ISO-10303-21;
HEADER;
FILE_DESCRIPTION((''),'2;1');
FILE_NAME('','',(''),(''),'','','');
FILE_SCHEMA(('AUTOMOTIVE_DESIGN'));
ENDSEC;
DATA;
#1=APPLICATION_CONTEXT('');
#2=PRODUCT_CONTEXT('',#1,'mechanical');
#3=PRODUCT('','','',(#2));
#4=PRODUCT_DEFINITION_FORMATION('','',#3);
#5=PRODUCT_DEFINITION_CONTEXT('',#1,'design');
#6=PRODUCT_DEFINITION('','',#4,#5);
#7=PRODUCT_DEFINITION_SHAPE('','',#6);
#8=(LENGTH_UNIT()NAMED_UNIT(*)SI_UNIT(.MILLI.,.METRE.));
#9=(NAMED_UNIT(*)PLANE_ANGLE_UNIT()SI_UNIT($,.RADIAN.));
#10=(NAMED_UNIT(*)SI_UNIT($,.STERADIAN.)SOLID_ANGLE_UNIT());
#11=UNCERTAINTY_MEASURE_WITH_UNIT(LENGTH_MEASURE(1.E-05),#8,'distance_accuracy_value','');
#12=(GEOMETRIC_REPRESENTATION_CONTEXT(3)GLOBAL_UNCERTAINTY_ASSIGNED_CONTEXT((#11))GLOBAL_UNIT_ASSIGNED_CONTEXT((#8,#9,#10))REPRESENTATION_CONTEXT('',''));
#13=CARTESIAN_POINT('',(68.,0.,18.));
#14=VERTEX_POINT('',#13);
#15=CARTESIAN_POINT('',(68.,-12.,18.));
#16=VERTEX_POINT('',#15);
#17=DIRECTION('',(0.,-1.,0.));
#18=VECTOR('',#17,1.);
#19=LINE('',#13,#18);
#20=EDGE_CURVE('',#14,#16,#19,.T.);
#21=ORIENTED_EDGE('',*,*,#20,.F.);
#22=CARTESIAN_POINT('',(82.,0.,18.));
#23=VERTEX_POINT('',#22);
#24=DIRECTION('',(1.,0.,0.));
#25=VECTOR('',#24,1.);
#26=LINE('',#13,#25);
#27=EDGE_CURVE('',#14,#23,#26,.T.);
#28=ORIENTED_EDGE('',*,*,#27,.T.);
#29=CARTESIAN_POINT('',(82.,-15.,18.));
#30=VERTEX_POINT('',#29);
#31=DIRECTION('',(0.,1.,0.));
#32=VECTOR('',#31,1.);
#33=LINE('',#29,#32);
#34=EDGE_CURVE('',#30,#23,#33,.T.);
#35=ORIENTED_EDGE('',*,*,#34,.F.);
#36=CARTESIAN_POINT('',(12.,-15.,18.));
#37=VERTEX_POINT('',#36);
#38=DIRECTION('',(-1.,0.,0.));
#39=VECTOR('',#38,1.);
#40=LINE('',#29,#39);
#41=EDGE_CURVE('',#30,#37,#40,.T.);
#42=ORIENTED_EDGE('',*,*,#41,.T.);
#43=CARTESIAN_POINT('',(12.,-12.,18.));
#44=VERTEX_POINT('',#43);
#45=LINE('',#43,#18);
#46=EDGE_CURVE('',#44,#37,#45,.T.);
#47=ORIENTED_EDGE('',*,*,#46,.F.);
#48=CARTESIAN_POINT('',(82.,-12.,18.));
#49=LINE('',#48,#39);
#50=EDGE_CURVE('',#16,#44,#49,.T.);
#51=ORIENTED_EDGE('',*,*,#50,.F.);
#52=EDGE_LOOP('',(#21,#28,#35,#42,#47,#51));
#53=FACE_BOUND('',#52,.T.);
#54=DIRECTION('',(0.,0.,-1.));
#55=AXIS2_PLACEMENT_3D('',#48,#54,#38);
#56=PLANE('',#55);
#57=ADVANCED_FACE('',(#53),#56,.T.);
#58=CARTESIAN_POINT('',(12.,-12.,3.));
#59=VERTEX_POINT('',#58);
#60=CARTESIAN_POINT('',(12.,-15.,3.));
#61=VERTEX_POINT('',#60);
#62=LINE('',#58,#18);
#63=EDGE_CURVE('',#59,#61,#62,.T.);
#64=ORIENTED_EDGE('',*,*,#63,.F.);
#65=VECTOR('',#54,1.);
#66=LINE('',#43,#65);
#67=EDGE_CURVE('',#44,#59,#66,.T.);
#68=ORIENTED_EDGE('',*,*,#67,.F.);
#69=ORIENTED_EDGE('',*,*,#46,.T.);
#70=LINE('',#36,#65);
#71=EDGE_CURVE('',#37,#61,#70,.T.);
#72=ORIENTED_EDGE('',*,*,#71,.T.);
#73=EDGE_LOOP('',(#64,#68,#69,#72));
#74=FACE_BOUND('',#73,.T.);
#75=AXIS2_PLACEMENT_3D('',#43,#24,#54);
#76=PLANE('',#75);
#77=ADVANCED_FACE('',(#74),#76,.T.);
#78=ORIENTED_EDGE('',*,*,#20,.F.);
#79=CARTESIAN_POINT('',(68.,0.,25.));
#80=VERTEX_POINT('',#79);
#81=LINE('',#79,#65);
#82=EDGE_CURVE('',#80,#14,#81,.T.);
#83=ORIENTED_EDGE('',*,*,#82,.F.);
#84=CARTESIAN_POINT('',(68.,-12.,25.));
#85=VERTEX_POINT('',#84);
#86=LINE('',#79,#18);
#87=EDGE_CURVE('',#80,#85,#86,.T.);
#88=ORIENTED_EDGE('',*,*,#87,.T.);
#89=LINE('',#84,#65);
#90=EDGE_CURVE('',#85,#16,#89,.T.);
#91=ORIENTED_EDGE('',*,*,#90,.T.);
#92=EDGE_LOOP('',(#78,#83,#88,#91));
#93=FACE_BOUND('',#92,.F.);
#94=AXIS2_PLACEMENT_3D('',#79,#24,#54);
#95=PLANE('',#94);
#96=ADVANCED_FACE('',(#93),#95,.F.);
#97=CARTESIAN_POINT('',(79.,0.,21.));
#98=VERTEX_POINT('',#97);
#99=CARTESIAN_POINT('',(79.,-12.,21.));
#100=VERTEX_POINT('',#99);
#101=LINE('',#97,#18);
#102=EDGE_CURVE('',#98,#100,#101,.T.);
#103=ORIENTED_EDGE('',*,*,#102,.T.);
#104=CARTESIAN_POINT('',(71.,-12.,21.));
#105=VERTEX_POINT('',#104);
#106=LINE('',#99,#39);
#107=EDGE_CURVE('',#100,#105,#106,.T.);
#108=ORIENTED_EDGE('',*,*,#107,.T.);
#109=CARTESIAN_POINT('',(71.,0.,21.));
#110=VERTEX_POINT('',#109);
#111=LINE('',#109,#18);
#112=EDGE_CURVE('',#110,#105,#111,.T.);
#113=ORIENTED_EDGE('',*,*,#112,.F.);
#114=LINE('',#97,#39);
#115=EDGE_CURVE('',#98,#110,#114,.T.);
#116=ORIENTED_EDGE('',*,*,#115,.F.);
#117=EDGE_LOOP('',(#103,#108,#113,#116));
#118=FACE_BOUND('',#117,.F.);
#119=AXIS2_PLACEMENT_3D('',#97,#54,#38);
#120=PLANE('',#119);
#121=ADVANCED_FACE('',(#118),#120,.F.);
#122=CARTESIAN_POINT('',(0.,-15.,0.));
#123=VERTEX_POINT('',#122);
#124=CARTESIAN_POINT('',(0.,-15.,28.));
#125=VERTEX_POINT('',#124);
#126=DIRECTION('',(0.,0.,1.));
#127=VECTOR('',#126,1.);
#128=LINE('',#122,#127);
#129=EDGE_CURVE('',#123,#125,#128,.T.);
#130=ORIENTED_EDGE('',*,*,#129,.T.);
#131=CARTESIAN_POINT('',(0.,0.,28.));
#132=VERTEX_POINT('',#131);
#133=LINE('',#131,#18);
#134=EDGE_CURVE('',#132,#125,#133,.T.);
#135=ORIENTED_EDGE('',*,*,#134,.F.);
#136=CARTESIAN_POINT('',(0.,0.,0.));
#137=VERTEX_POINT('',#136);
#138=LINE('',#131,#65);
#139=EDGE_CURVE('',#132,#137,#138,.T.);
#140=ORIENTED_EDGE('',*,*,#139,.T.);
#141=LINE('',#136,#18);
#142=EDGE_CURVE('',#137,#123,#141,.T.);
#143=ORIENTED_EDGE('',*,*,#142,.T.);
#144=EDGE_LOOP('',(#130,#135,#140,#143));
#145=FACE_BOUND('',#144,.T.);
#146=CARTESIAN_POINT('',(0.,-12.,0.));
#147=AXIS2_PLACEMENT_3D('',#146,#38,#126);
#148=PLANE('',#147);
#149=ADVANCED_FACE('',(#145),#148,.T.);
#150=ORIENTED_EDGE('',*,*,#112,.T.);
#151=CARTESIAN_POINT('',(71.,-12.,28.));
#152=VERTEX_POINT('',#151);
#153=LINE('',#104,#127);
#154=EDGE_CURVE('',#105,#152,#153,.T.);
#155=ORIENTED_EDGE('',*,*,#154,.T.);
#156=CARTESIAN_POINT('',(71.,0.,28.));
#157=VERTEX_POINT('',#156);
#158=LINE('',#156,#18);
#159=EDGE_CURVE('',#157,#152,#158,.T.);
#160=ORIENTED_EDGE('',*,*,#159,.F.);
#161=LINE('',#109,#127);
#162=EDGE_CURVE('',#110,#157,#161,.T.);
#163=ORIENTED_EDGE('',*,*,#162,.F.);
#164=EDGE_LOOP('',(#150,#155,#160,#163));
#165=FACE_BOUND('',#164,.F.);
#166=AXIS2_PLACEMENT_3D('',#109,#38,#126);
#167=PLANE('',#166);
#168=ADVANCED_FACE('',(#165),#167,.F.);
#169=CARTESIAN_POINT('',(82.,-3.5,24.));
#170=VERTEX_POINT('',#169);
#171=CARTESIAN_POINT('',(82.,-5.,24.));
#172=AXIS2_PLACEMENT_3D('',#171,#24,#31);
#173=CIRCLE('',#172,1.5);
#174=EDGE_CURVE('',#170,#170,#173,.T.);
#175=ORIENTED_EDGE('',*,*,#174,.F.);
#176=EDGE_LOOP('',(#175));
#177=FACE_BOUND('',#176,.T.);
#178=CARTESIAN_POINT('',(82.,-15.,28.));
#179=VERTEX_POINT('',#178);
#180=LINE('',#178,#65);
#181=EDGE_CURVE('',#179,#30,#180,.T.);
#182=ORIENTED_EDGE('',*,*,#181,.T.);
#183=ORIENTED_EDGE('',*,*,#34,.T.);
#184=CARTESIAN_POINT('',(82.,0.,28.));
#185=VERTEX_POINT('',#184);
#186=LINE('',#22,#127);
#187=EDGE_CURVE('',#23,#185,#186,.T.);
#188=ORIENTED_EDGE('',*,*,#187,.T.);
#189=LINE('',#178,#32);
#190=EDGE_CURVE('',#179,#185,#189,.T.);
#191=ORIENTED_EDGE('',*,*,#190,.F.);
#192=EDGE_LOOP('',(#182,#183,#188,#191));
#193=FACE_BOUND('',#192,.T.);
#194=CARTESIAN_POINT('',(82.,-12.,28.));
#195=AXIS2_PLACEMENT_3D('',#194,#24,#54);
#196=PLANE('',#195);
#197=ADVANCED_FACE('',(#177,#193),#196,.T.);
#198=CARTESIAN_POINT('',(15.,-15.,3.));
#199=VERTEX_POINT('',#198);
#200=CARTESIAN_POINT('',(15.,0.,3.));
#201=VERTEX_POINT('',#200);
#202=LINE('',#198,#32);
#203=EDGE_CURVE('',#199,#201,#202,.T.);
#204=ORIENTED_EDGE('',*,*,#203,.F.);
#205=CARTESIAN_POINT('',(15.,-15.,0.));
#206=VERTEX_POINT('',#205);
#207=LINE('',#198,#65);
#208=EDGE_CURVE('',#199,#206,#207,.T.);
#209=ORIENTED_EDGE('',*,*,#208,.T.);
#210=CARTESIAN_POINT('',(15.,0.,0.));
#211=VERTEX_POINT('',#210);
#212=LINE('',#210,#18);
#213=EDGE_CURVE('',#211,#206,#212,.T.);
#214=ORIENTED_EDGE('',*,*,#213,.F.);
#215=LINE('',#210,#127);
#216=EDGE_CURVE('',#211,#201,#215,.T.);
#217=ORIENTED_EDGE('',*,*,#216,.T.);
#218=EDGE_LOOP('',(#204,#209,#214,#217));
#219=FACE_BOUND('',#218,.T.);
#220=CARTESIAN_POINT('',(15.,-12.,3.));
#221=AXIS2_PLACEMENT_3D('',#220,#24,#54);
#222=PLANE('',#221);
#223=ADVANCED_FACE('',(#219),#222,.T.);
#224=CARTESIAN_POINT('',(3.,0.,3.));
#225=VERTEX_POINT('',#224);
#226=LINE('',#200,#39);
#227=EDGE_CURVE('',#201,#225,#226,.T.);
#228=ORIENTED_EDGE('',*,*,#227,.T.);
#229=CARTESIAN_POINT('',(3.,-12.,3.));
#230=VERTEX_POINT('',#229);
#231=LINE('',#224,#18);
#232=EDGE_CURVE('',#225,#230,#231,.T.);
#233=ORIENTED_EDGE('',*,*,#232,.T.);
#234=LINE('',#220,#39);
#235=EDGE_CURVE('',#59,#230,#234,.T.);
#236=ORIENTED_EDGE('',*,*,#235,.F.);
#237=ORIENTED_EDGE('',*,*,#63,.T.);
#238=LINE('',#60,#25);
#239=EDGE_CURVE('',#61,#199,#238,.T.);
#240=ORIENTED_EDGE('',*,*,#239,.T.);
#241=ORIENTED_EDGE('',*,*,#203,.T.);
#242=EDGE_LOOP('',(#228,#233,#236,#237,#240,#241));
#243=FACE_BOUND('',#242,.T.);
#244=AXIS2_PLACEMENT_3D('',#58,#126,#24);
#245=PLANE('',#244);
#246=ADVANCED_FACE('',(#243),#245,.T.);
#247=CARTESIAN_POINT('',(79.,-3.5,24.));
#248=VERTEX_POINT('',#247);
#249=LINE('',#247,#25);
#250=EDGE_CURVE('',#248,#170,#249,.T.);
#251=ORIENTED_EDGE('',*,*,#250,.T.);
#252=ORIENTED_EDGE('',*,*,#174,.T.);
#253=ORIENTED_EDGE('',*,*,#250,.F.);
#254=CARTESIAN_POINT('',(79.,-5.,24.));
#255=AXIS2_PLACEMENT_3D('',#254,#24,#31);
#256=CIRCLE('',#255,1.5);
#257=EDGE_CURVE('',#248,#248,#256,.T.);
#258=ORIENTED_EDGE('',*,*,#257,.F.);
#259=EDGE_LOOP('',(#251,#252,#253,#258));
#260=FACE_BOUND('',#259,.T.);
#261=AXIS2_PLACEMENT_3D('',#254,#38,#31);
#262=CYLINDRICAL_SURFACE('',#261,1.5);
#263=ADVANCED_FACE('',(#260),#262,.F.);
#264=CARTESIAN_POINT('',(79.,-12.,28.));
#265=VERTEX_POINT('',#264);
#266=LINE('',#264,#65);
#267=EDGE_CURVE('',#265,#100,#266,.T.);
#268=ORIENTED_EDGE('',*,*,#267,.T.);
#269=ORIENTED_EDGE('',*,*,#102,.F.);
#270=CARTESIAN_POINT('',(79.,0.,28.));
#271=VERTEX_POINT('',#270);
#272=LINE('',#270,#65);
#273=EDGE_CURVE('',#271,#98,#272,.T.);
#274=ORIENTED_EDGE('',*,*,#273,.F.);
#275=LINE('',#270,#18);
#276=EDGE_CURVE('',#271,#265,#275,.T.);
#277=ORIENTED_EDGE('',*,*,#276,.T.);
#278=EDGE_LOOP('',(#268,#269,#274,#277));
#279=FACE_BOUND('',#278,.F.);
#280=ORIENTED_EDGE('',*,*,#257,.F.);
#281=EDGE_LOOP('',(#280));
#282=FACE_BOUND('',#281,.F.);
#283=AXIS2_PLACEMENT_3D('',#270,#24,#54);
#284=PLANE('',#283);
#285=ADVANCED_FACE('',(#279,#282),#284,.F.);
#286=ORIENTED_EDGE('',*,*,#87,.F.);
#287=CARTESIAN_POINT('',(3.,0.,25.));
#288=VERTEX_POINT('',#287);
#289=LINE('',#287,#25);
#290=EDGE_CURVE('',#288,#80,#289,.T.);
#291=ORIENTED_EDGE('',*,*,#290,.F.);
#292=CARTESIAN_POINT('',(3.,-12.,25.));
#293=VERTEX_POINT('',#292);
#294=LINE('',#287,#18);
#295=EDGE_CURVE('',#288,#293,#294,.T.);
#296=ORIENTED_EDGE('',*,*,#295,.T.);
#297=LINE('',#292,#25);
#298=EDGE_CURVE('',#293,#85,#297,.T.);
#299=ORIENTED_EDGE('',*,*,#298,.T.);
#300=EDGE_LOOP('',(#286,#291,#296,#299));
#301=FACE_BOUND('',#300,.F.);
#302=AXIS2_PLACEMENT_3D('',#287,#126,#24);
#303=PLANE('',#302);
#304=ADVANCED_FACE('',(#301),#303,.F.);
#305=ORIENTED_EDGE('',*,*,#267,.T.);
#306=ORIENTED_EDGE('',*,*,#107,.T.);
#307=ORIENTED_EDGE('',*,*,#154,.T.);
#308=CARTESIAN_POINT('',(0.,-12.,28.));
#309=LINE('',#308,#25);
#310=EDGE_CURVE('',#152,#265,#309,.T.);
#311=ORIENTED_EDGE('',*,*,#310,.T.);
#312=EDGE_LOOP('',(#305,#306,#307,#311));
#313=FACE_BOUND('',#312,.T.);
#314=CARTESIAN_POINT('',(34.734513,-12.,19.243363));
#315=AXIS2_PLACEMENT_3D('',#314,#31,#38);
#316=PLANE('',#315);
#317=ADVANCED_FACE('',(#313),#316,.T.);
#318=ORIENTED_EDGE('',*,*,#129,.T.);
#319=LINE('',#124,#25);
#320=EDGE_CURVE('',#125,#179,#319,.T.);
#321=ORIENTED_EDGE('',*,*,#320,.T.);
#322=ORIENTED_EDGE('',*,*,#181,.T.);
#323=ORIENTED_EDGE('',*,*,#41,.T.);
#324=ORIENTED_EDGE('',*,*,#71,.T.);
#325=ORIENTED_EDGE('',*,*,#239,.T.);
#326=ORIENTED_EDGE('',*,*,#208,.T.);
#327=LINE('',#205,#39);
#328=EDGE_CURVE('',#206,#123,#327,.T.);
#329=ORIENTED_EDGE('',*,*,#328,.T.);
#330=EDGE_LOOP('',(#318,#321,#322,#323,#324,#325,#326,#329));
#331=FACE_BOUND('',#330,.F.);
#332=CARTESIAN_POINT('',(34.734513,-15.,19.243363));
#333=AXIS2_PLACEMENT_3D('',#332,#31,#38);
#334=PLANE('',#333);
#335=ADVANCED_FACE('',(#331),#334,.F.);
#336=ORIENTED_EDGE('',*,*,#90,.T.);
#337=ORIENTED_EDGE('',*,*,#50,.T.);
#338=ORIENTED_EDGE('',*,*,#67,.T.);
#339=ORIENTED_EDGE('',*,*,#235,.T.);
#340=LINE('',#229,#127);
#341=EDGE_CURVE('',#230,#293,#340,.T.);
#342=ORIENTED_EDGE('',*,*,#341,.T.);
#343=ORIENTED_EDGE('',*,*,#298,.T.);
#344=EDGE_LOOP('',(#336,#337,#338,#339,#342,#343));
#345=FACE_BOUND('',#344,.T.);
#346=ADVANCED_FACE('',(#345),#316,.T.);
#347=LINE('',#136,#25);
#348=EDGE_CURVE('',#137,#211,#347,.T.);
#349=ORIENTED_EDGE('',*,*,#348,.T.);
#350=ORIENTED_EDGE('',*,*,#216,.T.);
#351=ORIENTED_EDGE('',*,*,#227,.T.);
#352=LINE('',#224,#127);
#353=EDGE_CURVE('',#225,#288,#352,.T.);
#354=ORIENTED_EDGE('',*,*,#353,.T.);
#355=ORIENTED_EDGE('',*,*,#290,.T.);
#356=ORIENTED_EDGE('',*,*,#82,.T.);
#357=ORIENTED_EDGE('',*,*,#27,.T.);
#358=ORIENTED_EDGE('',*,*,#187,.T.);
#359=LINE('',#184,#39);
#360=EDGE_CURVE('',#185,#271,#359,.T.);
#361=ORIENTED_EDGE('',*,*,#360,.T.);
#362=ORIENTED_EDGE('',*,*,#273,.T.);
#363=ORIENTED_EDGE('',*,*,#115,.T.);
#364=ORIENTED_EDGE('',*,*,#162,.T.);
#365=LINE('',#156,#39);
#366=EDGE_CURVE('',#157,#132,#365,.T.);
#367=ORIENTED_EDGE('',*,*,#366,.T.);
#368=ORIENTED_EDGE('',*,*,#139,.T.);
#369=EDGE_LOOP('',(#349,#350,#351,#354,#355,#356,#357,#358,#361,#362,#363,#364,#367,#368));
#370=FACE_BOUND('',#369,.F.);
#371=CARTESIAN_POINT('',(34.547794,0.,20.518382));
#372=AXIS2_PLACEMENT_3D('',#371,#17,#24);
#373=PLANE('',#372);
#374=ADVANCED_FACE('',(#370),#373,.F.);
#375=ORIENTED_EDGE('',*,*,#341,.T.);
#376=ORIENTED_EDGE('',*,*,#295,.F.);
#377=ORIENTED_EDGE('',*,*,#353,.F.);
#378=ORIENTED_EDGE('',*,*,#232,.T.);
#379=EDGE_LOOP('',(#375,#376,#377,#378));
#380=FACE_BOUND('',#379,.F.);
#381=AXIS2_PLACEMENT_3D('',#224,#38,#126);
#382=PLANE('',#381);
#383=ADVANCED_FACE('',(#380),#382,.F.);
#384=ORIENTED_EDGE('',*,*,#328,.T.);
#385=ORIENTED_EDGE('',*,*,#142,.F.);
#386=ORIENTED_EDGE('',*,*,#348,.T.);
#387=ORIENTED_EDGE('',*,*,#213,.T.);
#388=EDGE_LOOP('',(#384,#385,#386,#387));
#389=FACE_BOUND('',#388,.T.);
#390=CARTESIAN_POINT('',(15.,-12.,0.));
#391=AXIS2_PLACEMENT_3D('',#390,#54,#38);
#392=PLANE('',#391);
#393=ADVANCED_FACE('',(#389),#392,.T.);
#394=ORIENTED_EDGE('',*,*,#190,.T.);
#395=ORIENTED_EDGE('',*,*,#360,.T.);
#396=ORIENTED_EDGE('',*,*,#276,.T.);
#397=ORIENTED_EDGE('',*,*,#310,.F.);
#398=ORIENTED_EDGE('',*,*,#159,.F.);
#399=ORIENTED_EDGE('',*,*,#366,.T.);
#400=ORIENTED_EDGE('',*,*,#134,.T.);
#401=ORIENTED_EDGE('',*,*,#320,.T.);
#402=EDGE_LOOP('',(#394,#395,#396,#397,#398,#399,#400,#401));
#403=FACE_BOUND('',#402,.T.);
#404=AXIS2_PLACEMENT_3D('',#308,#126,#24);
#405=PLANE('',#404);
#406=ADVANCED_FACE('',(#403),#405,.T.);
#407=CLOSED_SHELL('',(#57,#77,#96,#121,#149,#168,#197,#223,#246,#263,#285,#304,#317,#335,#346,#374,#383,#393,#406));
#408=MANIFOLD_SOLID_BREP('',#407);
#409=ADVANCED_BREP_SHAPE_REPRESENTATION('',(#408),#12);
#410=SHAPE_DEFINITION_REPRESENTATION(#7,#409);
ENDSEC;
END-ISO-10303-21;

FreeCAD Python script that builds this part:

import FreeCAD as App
import Part
import Sketcher
from FreeCAD import Vector

doc = App.newDocument("Part")
params = doc.addObject("Spreadsheet::Sheet", "Params")
for row, (alias, value) in enumerate([
    ("sketch1_width", "3 mm"),
    ("sketch1_width2", "8 mm"),
    ("sketch1_width3", "71 mm"),
    ("sketch1_width4", "15 mm"),
    ("sketch1_width5", "12 mm"),
    ("pad1_length", "12 mm"),
    ("sketch2_width", "82 mm"),
    ("sketch2_width2", "15 mm"),
    ("sketch2_width3", "3 mm"),
    ("sketch2_height", "28 mm"),
    ("pad2_length", "3 mm"),
    ("sketch3_diameter", "3 mm"),
    ("pocket1_length", "3 mm"),
], start=1):
    params.set(f"A{row}", alias)
    params.set(f"B{row}", "=" + value)
    params.setAlias(f"B{row}", alias)

body = doc.addObject("PartDesign::Body", "Body")

sketch1 = body.newObject("Sketcher::SketchObject", "Sketch")
sketch1.AttachmentSupport = (doc.getObject("XZ_Plane"), [""])
sketch1.MapMode = "FlatFace"
sketch1.addGeometry([
    Part.LineSegment(Vector(82, 18, 0), Vector(82, 28, 0)),
    Part.LineSegment(Vector(82, 28, 0), Vector(79, 28, 0)),
    Part.LineSegment(Vector(79, 28, 0), Vector(79, 21, 0)),
    Part.LineSegment(Vector(79, 21, 0), Vector(71, 21, 0)),
    Part.LineSegment(Vector(71, 21, 0), Vector(71, 28, 0)),
    Part.LineSegment(Vector(71, 28, 0), Vector(0, 28, 0)),
    Part.LineSegment(Vector(0, 28, 0), Vector(0, 0, 0)),
    Part.LineSegment(Vector(0, 0, 0), Vector(15, 0, 0)),
    Part.LineSegment(Vector(15, 0, 0), Vector(15, 3, 0)),
    Part.LineSegment(Vector(15, 3, 0), Vector(3, 3, 0)),
    Part.LineSegment(Vector(3, 3, 0), Vector(3, 25, 0)),
    Part.LineSegment(Vector(3, 25, 0), Vector(68, 25, 0)),
    Part.LineSegment(Vector(68, 25, 0), Vector(68, 18, 0)),
    Part.LineSegment(Vector(68, 18, 0), Vector(82, 18, 0)),
], False)
sketch1.addConstraint([
    Sketcher.Constraint("Coincident", 0, 2, 1, 1),
    Sketcher.Constraint("Coincident", 1, 2, 2, 1),
    Sketcher.Constraint("Coincident", 2, 2, 3, 1),
    Sketcher.Constraint("Coincident", 3, 2, 4, 1),
    Sketcher.Constraint("Coincident", 4, 2, 5, 1),
    Sketcher.Constraint("Coincident", 5, 2, 6, 1),
    Sketcher.Constraint("Coincident", 6, 2, 7, 1),
    Sketcher.Constraint("Coincident", 7, 2, 8, 1),
    Sketcher.Constraint("Coincident", 8, 2, 9, 1),
    Sketcher.Constraint("Coincident", 9, 2, 10, 1),
    Sketcher.Constraint("Coincident", 10, 2, 11, 1),
    Sketcher.Constraint("Coincident", 11, 2, 12, 1),
    Sketcher.Constraint("Coincident", 12, 2, 13, 1),
    Sketcher.Constraint("Coincident", 13, 2, 0, 1),
    Sketcher.Constraint("Vertical", 0),
    Sketcher.Constraint("Horizontal", 1),
    Sketcher.Constraint("Vertical", 2),
    Sketcher.Constraint("Horizontal", 3),
    Sketcher.Constraint("Vertical", 4),
    Sketcher.Constraint("Horizontal", 5),
    Sketcher.Constraint("Vertical", 6),
    Sketcher.Constraint("Horizontal", 7),
    Sketcher.Constraint("Vertical", 8),
    Sketcher.Constraint("Horizontal", 9),
    Sketcher.Constraint("Vertical", 10),
    Sketcher.Constraint("Horizontal", 11),
    Sketcher.Constraint("Vertical", 12),
    Sketcher.Constraint("Horizontal", 13),
    Sketcher.Constraint("Coincident", 6, 2, -1, 1),
    Sketcher.Constraint("Horizontal", 1, 2, 4, 2),
    Sketcher.Constraint("Equal", 1, 8),
    Sketcher.Constraint("Equal", 4, 12),
    Sketcher.Constraint("DistanceX", 1, 2, 1, 1, 3.0),
    Sketcher.Constraint("DistanceX", 3, 2, 3, 1, 8.0),
    Sketcher.Constraint("DistanceX", 5, 2, 5, 1, 71.0),
    Sketcher.Constraint("DistanceX", 7, 1, 7, 2, 15.0),
    Sketcher.Constraint("DistanceX", 9, 2, 9, 1, 12.0),
    Sketcher.Constraint("DistanceX", 11, 1, 11, 2, 65.0),
    Sketcher.Constraint("DistanceY", 0, 1, 0, 2, 10.0),
    Sketcher.Constraint("DistanceY", 2, 2, 2, 1, 7.0),
    Sketcher.Constraint("DistanceY", 6, 2, 6, 1, 28.0),
])
sketch1.setExpression("Constraints[32]", "Params.sketch1_width")
sketch1.setExpression("Constraints[33]", "Params.sketch1_width2")
sketch1.setExpression("Constraints[34]", "Params.sketch1_width3")
sketch1.setExpression("Constraints[35]", "Params.sketch1_width4")
sketch1.setExpression("Constraints[36]", "Params.sketch1_width5")
pad1 = body.newObject("PartDesign::Pad", "Pad")
pad1.Profile = sketch1
pad1.setExpression("Length", "Params.pad1_length")

sketch2 = body.newObject("Sketcher::SketchObject", "Sketch001")
sketch2.AttachmentSupport = (doc.getObject("XZ_Plane"), [""])
sketch2.MapMode = "FlatFace"
sketch2.AttachmentOffset = App.Placement(Vector(0, 0, 12), App.Rotation())
sketch2.addGeometry([
    Part.LineSegment(Vector(82, 28, 0), Vector(0, 28, 0)),
    Part.LineSegment(Vector(0, 28, 0), Vector(0, 0, 0)),
    Part.LineSegment(Vector(0, 0, 0), Vector(15, 0, 0)),
    Part.LineSegment(Vector(15, 0, 0), Vector(15, 3, 0)),
    Part.LineSegment(Vector(15, 3, 0), Vector(12, 3, 0)),
    Part.LineSegment(Vector(12, 3, 0), Vector(12, 18, 0)),
    Part.LineSegment(Vector(12, 18, 0), Vector(82, 18, 0)),
    Part.LineSegment(Vector(82, 18, 0), Vector(82, 28, 0)),
], False)
sketch2.addConstraint([
    Sketcher.Constraint("Coincident", 0, 2, 1, 1),
    Sketcher.Constraint("Coincident", 1, 2, 2, 1),
    Sketcher.Constraint("Coincident", 2, 2, 3, 1),
    Sketcher.Constraint("Coincident", 3, 2, 4, 1),
    Sketcher.Constraint("Coincident", 4, 2, 5, 1),
    Sketcher.Constraint("Coincident", 5, 2, 6, 1),
    Sketcher.Constraint("Coincident", 6, 2, 7, 1),
    Sketcher.Constraint("Coincident", 7, 2, 0, 1),
    Sketcher.Constraint("Horizontal", 0),
    Sketcher.Constraint("Vertical", 1),
    Sketcher.Constraint("Horizontal", 2),
    Sketcher.Constraint("Vertical", 3),
    Sketcher.Constraint("Horizontal", 4),
    Sketcher.Constraint("Vertical", 5),
    Sketcher.Constraint("Horizontal", 6),
    Sketcher.Constraint("Vertical", 7),
    Sketcher.Constraint("Coincident", 1, 2, -1, 1),
    Sketcher.Constraint("Equal", 4, 3),
    Sketcher.Constraint("Equal", 2, 5),
    Sketcher.Constraint("DistanceX", 0, 2, 0, 1, 82.0),
    Sketcher.Constraint("DistanceX", 2, 1, 2, 2, 15.0),
    Sketcher.Constraint("DistanceX", 4, 2, 4, 1, 3.0),
    Sketcher.Constraint("DistanceY", 1, 2, 1, 1, 28.0),
])
sketch2.setExpression("Constraints[19]", "Params.sketch2_width")
sketch2.setExpression("Constraints[20]", "Params.sketch2_width2")
sketch2.setExpression("Constraints[21]", "Params.sketch2_width3")
sketch2.setExpression("Constraints[22]", "Params.sketch2_height")
pad2 = body.newObject("PartDesign::Pad", "Pad001")
pad2.Profile = sketch2
pad2.setExpression("Length", "Params.pad2_length")

sketch3 = body.newObject("Sketcher::SketchObject", "Sketch002")
sketch3.AttachmentSupport = (doc.getObject("YZ_Plane"), [""])
sketch3.MapMode = "FlatFace"
sketch3.AttachmentOffset = App.Placement(Vector(0, 0, 79), App.Rotation())
sketch3.addGeometry(Part.Circle(Vector(-5, 24, 0), Vector(0, 0, 1), 1.5), False)
sketch3.addConstraint([
    Sketcher.Constraint("Diameter", 0, 3.0),
    Sketcher.Constraint("DistanceX", 0, 3, -1, 1, 5.0),
    Sketcher.Constraint("DistanceY", -1, 1, 0, 3, 24.0),
])
sketch3.setExpression("Constraints[0]", "Params.sketch3_diameter")
pocket1 = body.newObject("PartDesign::Pocket", "Pocket")
pocket1.Profile = sketch3
pocket1.setExpression("Length", "Params.pocket1_length")
pocket1.Reversed = True

doc.recompute()
